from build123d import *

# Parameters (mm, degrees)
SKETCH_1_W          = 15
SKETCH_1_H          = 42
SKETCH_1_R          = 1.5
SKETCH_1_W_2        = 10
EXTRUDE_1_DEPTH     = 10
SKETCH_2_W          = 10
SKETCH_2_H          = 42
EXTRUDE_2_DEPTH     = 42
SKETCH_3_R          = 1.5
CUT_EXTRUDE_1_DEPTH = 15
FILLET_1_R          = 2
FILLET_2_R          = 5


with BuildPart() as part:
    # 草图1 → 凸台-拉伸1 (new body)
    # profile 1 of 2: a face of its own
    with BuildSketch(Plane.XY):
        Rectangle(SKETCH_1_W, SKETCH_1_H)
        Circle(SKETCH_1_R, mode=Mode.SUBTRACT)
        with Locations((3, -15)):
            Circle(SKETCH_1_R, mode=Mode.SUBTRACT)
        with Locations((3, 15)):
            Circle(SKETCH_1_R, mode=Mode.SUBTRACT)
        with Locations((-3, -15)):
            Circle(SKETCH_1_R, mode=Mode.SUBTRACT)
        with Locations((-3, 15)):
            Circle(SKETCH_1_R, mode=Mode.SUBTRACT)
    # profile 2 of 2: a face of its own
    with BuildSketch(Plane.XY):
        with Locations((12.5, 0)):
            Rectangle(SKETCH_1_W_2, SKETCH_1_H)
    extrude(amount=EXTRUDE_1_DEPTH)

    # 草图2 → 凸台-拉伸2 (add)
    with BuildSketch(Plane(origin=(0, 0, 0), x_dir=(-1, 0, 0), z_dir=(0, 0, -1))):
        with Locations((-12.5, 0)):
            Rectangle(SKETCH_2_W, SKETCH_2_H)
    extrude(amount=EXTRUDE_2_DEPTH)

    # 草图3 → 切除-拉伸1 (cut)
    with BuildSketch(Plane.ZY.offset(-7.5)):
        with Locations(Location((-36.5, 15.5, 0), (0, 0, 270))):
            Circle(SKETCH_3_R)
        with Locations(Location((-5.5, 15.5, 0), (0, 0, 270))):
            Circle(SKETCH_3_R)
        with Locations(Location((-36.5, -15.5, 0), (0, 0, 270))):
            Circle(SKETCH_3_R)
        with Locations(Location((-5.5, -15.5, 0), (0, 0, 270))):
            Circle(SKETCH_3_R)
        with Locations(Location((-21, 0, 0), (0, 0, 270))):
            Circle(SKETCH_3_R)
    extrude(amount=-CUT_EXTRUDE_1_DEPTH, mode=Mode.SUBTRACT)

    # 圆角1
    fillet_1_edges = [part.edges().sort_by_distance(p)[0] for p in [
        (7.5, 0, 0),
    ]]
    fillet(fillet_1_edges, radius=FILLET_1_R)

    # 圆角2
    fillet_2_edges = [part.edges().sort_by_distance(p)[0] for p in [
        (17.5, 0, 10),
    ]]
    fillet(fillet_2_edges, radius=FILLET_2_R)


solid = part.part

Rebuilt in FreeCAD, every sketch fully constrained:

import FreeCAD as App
import Part
import Sketcher


def edges_at(feature, points):
    """Names of the edges that pass closest to the given points."""
    edges = feature.Shape.Edges
    near = lambda p: min(range(len(edges)), key=lambda i: edges[i].distToShape(Part.Vertex(*p))[0])
    return sorted({f"Edge{near(p) + 1}" for p in points})


def add_polygon(sketch, points):
    """Adds a closed chain of lines whose ends are joined by coincident constraints."""
    first, n = sketch.GeometryCount, len(points)
    for a, b in zip(points, points[1:] + points[:1]):
        sketch.addGeometry(Part.LineSegment(App.Vector(*a, 0), App.Vector(*b, 0)), False)
    for i in range(n):
        sketch.addConstraint(Sketcher.Constraint("Coincident", first + i, 2, first + (i + 1) % n, 1))

doc = App.newDocument("Part")
body = doc.addObject("PartDesign::Body", "Body")

# Sketch on XY plane
sketch1 = body.newObject("Sketcher::SketchObject", "Sketch")
sketch1.AttachmentSupport = (doc.getObject("XY_Plane"), [""])
sketch1.MapMode = "FlatFace"
add_polygon(sketch1, [(-7.5, 21), (-7.5, -21), (17.5, -21), (17.5, 21)])  # lines 0-3
sketch1.addGeometry(Part.Circle(App.Vector(-3, -15, 0), App.Vector(0, 0, 1), 1.5), False)  # 4
sketch1.addGeometry(Part.Circle(App.Vector(3, -15, 0), App.Vector(0, 0, 1), 1.5), False)  # 5
sketch1.addGeometry(Part.Circle(App.Vector(-3, 15, 0), App.Vector(0, 0, 1), 1.5), False)  # 6
sketch1.addGeometry(Part.Circle(App.Vector(0, 0, 0), App.Vector(0, 0, 1), 1.5), False)  # 7
sketch1.addGeometry(Part.Circle(App.Vector(3, 15, 0), App.Vector(0, 0, 1), 1.5), False)  # 8
sketch1.addConstraint([
    Sketcher.Constraint("Vertical", 0),
    Sketcher.Constraint("Horizontal", 1),
    Sketcher.Constraint("Vertical", 2),
    Sketcher.Constraint("Horizontal", 3),
    Sketcher.Constraint("Coincident", 7, 3, -1, 1),
    Sketcher.Constraint("Equal", 4, 5),
    Sketcher.Constraint("Equal", 5, 6),
    Sketcher.Constraint("Equal", 6, 7),
    Sketcher.Constraint("Equal", 7, 8),
    Sketcher.Constraint("Symmetric", 5, 3, 6, 3, -1, 1),
    Sketcher.Constraint("Symmetric", 4, 3, 8, 3, -1, 1),
    Sketcher.Constraint("Symmetric", 4, 3, 5, 3, -2),
    Sketcher.Constraint("Diameter", 4, 3.0),
    Sketcher.Constraint("DistanceX", 1, 1, 1, 2, 25.0),
    Sketcher.Constraint("DistanceY", 0, 2, 0, 1, 42.0),
    Sketcher.Constraint("DistanceX", 4, 3, -1, 1, 3.0),
    Sketcher.Constraint("DistanceY", 4, 3, -1, 1, 15.0),
    Sketcher.Constraint("DistanceY", 0, 2, -1, 1, 21.0),
    Sketcher.Constraint("DistanceX", 0, 2, -1, 1, 7.5),
])
pad1 = body.newObject("PartDesign::Pad", "Pad")
pad1.Profile = sketch1
pad1.Length = 10

# Sketch on XY plane
sketch2 = body.newObject("Sketcher::SketchObject", "Sketch001")
sketch2.AttachmentSupport = (doc.getObject("XY_Plane"), [""])
sketch2.MapMode = "FlatFace"
add_polygon(sketch2, [(17.5, 21), (17.5, -21), (7.5, -21), (7.5, 21)])  # lines 0-3
sketch2.addConstraint([
    Sketcher.Constraint("Vertical", 0),
    Sketcher.Constraint("Horizontal", 1),
    Sketcher.Constraint("Vertical", 2),
    Sketcher.Constraint("Horizontal", 3),
    Sketcher.Constraint("DistanceX", 1, 2, 1, 1, 10.0),
    Sketcher.Constraint("DistanceY", 0, 2, 0, 1, 42.0),
    Sketcher.Constraint("DistanceY", 0, 2, -1, 1, 21.0),
    Sketcher.Constraint("DistanceX", -1, 1, 0, 2, 17.5),
])
pad2 = body.newObject("PartDesign::Pad", "Pad001")
pad2.Profile = sketch2
pad2.Length = 42
pad2.Reversed = True

# Sketch on YZ plane
sketch3 = body.newObject("Sketcher::SketchObject", "Sketch002")
sketch3.AttachmentSupport = (doc.getObject("YZ_Plane"), [""])
sketch3.MapMode = "FlatFace"
sketch3.AttachmentOffset = App.Placement(App.Vector(0, 0, 7.5), App.Rotation())
sketch3.addGeometry([
    Part.Circle(App.Vector(15.5, -36.5, 0), App.Vector(0, 0, 1), 1.5),  # 0
    Part.Circle(App.Vector(15.5, -5.5, 0), App.Vector(0, 0, 1), 1.5),  # 1
    Part.Circle(App.Vector(-15.5, -36.5, 0), App.Vector(0, 0, 1), 1.5),  # 2
    Part.Circle(App.Vector(-15.5, -5.5, 0), App.Vector(0, 0, 1), 1.5),  # 3
    Part.Circle(App.Vector(0, -21, 0), App.Vector(0, 0, 1), 1.5),  # 4
], False)
sketch3.addConstraint([
    Sketcher.Constraint("Equal", 0, 1),
    Sketcher.Constraint("Equal", 1, 2),
    Sketcher.Constraint("Equal", 2, 3),
    Sketcher.Constraint("Equal", 3, 4),
    Sketcher.Constraint("Symmetric", 0, 3, 2, 3, -2),
    Sketcher.Constraint("Symmetric", 1, 3, 3, 3, -2),
    Sketcher.Constraint("PointOnObject", 4, 3, -2),
    Sketcher.Constraint("Vertical", 0, 3, 1, 3),
    Sketcher.Constraint("Diameter", 0, 3.0),
    Sketcher.Constraint("DistanceY", 4, 3, -1, 1, 21.0),
    Sketcher.Constraint("DistanceY", 0, 3, 1, 3, 31.0),
    Sketcher.Constraint("DistanceX", 2, 3, 0, 3, 31.0),
    Sketcher.Constraint("DistanceY", 0, 3, -1, 1, 36.5),
])
pocket1 = body.newObject("PartDesign::Pocket", "Pocket")
pocket1.Profile = sketch3
pocket1.Length = 15
pocket1.Reversed = True
doc.recompute()

fillet = body.newObject("PartDesign::Fillet", "Fillet")
fillet.Base = (pocket1, edges_at(pocket1, [(7.5, 0, 0)]))
fillet.Radius = 2
doc.recompute()

fillet2 = body.newObject("PartDesign::Fillet", "Fillet001")
fillet2.Base = (fillet, edges_at(fillet, [(17.5, 0, 10)]))
fillet2.Radius = 5

doc.recompute()
